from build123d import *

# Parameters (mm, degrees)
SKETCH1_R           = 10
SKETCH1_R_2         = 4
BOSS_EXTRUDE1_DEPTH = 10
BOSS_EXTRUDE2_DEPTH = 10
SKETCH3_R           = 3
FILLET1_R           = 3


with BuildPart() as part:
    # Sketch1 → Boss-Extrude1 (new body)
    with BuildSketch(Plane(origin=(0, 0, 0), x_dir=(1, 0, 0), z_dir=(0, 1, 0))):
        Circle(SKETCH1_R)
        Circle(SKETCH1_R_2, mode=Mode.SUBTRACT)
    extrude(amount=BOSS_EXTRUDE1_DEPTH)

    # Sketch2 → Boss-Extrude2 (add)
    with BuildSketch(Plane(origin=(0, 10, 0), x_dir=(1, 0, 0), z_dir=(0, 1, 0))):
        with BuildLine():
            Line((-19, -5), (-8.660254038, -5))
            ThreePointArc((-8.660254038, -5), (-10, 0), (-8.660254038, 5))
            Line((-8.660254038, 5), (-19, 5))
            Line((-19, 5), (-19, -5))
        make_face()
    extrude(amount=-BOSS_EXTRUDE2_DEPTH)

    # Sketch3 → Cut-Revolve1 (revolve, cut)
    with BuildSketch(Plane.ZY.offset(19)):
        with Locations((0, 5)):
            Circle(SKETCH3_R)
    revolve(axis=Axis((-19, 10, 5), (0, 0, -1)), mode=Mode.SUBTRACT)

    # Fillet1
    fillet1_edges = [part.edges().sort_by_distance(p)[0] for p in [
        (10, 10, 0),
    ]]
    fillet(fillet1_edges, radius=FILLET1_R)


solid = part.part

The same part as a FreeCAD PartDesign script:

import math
import FreeCAD as App
import Part
import Sketcher
from FreeCAD import Vector


def edges_at(feature, points):
    """Names of the edges that pass closest to the given points."""
    edges = feature.Shape.Edges
    near = lambda p: min(range(len(edges)), key=lambda i: edges[i].distToShape(Part.Vertex(*p))[0])
    return sorted({f"Edge{near(p) + 1}" for p in points})

doc = App.newDocument("Part")
body = doc.addObject("PartDesign::Body", "Body")

sketch1 = body.newObject("Sketcher::SketchObject", "Sketch")
sketch1.AttachmentSupport = (doc.getObject("XZ_Plane"), [""])
sketch1.MapMode = "FlatFace"
sketch1.addGeometry([
    Part.Circle(Vector(0, 0, 0), Vector(0, 0, 1), 10),
    Part.Circle(Vector(0, 0, 0), Vector(0, 0, 1), 4),
], False)
sketch1.addConstraint([
    Sketcher.Constraint("Coincident", 0, 3, -1, 1),
    Sketcher.Constraint("Coincident", 1, 3, -1, 1),
    Sketcher.Constraint("Diameter", 0, 20.0),
    Sketcher.Constraint("Diameter", 1, 8.0),
])
pad1 = body.newObject("PartDesign::Pad", "Pad")
pad1.Profile = sketch1
pad1.Length = 10
pad1.Reversed = True

sketch2 = body.newObject("Sketcher::SketchObject", "Sketch001")
sketch2.AttachmentSupport = (doc.getObject("XZ_Plane"), [""])
sketch2.MapMode = "FlatFace"
sketch2.AttachmentOffset = App.Placement(Vector(0, 0, -10), App.Rotation())
sketch2.addGeometry([
    Part.LineSegment(Vector(-19, 5, 0), Vector(-9, 5, 0)),
    Part.ArcOfCircle(Part.Circle(Vector(0, 0, 0), Vector(0, 0, 1), 10), math.radians(150), math.radians(210)),
    Part.LineSegment(Vector(-9, -5, 0), Vector(-19, -5, 0)),
    Part.LineSegment(Vector(-19, -5, 0), Vector(-19, 5, 0)),
], False)
sketch2.addConstraint([
    Sketcher.Constraint("Coincident", 0, 2, 1, 1),
    Sketcher.Constraint("Coincident", 1, 2, 2, 1),
    Sketcher.Constraint("Coincident", 2, 2, 3, 1),
    Sketcher.Constraint("Coincident", 3, 2, 0, 1),
    Sketcher.Constraint("Horizontal", 0),
    Sketcher.Constraint("Horizontal", 2),
    Sketcher.Constraint("Vertical", 3),
    Sketcher.Constraint("Coincident", 1, 3, -1, 1),
    Sketcher.Constraint("Vertical", 0, 2, 1, 2),
    Sketcher.Constraint("Radius", 1, 10.0),
    Sketcher.Constraint("DistanceY", 3, 1, 3, 2, 10.0),
    Sketcher.Constraint("DistanceX", 2, 2, -1, 1, 19.0),
])
pad2 = body.newObject("PartDesign::Pad", "Pad001")
pad2.Profile = sketch2
pad2.Length = 10

sketch3 = body.newObject("Sketcher::SketchObject", "Sketch002")
sketch3.AttachmentSupport = (doc.getObject("YZ_Plane"), [""])
sketch3.MapMode = "FlatFace"
sketch3.AttachmentOffset = App.Placement(Vector(0, 0, -19), App.Rotation())
sketch3.addGeometry(Part.Circle(Vector(5, 0, 0), Vector(0, 0, 1), 3), False)
sketch3.addGeometry(Part.LineSegment(Vector(10, 0, 0), Vector(10, -10, 0)), True)
sketch3.addConstraint([
    Sketcher.Constraint("Vertical", 1),
    Sketcher.Constraint("PointOnObject", 0, 3, -1),
    Sketcher.Constraint("PointOnObject", 1, 1, -1),
    Sketcher.Constraint("Diameter", 0, 6.0),
    Sketcher.Constraint("DistanceY", 1, 2, 1, 1, 10.0),
    Sketcher.Constraint("DistanceX", -1, 1, 0, 3, 5.0),
    Sketcher.Constraint("DistanceX", -1, 1, 1, 1, 10.0),
])
groove = body.newObject("PartDesign::Groove", "Groove")
groove.Profile = sketch3
groove.ReferenceAxis = (sketch3, ["Axis0"])
groove.Angle = 360
doc.recompute()

fillet = body.newObject("PartDesign::Fillet", "Fillet")
fillet.Base = (groove, edges_at(groove, [(10, 10, 0)]))
fillet.Radius = 3

doc.recompute()
